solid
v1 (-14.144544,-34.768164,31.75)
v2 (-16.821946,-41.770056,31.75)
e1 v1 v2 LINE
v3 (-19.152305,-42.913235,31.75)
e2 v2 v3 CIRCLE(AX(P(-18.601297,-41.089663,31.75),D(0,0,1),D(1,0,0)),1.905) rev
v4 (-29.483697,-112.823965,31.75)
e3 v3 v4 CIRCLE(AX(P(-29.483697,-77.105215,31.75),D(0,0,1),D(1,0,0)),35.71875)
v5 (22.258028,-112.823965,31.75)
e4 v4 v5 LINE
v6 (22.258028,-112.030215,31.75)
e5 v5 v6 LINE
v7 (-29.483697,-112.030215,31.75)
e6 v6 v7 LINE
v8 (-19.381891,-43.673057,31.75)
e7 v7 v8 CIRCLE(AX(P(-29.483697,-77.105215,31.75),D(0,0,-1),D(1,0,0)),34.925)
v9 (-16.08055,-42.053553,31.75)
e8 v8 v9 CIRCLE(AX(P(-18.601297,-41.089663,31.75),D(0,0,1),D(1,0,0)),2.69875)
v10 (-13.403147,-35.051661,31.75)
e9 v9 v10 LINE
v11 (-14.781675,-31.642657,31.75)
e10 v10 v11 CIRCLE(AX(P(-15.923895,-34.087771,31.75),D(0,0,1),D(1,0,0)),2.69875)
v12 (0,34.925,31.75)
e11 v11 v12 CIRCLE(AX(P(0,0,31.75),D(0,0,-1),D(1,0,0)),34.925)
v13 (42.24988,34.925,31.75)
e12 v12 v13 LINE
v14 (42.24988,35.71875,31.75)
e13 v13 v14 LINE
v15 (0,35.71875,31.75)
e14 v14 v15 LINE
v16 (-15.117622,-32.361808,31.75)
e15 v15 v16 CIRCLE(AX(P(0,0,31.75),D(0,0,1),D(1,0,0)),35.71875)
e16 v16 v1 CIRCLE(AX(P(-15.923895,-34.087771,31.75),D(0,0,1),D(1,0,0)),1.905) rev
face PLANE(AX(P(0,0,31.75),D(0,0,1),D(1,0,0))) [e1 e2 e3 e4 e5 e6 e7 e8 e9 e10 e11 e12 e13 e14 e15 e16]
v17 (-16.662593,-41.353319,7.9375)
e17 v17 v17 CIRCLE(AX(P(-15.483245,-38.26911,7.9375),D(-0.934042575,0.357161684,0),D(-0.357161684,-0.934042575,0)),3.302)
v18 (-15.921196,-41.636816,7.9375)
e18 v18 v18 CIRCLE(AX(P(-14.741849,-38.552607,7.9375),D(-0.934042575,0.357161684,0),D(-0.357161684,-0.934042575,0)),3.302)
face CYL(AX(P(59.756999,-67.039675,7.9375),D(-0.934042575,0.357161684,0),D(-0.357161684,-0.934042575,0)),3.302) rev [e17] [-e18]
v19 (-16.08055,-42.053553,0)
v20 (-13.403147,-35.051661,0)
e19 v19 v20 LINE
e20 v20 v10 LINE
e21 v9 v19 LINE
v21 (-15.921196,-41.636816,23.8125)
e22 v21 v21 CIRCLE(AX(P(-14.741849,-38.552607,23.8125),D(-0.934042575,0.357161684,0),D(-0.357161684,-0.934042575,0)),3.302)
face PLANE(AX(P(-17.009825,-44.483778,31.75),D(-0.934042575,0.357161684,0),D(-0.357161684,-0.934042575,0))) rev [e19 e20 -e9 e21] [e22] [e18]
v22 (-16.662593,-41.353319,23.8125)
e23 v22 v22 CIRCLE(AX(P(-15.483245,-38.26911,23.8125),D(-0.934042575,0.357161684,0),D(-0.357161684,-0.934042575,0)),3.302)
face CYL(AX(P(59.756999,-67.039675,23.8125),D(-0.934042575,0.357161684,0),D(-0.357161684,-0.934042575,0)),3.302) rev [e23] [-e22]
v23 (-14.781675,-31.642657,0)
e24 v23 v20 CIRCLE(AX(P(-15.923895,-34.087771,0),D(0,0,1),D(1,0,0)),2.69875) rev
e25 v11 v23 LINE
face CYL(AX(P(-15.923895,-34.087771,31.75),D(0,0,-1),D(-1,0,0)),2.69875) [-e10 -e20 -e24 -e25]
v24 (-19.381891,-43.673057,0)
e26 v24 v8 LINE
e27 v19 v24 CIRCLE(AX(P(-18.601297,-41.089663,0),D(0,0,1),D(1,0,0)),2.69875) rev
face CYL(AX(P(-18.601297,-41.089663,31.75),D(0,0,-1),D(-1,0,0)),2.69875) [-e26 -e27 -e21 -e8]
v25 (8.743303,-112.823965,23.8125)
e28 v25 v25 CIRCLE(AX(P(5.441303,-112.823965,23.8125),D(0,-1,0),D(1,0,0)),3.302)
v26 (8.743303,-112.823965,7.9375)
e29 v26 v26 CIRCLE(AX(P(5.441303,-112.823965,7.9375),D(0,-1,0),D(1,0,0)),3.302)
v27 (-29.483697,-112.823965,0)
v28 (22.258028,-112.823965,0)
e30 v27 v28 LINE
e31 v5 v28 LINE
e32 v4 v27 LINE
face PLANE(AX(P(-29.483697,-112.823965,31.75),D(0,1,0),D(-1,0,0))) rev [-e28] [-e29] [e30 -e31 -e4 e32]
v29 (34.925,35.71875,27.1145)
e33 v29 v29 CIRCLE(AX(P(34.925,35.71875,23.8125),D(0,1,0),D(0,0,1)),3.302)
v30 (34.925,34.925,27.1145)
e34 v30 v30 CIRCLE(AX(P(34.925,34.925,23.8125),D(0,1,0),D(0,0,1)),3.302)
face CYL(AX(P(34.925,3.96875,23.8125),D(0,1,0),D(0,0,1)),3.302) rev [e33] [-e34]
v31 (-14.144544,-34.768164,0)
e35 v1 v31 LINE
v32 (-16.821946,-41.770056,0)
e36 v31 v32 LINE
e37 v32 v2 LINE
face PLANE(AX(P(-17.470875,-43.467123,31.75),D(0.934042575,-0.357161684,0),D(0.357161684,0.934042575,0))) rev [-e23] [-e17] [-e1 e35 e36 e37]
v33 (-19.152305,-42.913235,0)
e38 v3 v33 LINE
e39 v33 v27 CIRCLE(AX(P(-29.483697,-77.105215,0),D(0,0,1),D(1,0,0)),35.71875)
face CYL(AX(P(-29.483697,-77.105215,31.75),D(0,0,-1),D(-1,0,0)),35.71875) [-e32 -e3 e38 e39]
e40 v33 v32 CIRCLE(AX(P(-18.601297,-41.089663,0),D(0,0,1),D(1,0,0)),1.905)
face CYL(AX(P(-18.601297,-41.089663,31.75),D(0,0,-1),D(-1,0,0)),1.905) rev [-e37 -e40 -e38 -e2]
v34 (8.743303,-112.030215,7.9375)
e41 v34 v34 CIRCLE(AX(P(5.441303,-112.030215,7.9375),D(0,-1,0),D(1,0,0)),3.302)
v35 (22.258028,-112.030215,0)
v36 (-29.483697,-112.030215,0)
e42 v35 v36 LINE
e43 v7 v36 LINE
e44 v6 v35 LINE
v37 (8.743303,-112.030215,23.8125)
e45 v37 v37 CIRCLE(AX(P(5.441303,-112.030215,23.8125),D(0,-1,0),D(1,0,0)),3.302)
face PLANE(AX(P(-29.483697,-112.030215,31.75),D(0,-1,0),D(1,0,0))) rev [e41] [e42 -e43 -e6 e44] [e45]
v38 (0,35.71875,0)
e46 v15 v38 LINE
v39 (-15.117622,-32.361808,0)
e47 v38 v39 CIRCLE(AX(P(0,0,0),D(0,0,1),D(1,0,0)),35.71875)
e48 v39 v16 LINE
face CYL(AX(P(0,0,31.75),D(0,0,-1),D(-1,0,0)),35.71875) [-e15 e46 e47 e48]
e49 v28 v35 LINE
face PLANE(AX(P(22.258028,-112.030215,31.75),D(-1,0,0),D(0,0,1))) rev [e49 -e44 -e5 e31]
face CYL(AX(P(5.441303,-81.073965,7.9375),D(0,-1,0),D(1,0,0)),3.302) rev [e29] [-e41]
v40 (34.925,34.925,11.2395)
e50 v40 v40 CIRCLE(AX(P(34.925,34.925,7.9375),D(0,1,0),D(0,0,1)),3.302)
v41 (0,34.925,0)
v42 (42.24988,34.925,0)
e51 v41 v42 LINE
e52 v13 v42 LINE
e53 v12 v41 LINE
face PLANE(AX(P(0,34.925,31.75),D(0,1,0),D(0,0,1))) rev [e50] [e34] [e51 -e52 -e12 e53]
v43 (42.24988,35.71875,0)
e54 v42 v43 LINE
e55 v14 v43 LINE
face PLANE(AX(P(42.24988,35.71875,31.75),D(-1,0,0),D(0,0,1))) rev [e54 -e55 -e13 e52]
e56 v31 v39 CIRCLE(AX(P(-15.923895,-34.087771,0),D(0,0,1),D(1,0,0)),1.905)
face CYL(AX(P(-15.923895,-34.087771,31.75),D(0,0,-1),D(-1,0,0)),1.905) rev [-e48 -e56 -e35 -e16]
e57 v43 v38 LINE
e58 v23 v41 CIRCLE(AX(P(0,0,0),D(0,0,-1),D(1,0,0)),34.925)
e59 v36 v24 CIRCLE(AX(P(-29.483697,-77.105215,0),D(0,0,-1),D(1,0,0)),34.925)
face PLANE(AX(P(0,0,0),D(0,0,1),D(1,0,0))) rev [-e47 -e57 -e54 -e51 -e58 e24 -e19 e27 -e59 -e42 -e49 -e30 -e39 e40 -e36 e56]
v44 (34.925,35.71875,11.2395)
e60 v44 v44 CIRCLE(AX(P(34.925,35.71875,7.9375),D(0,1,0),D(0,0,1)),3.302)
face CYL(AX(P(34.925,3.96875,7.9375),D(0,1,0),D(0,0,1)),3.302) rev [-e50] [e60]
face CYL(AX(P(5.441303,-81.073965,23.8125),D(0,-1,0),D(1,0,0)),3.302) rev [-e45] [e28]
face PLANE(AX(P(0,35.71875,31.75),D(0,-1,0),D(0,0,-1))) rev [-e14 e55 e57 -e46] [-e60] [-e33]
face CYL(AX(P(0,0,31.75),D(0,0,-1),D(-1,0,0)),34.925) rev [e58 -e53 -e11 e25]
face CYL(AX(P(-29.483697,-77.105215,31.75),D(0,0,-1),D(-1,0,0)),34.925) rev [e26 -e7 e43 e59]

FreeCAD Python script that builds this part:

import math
import FreeCAD as App
import Part
import Sketcher
from FreeCAD import Vector
Q = App.Units.Quantity


def edges_at(feature, points):
    """Names of the edges that pass closest to the given points."""
    edges = feature.Shape.Edges
    near = lambda p: min(range(len(edges)), key=lambda i: edges[i].distToShape(Part.Vertex(*p))[0])
    return sorted({f"Edge{near(p) + 1}" for p in points})

doc = App.newDocument("Part")
params = doc.addObject("Spreadsheet::Sheet", "Params")
for row, (alias, value) in enumerate([
    ("sketch1_radius", "1.375 in"),
    ("sketch1_radius2", "1.40625 in"),
    ("sketch1_length", "0.5 in"),
    ("pad1_length", "1.25 in"),
    ("sketch2_diameter", "0.26 in"),
    ("sketch3_diameter", "0.26 in"),
    ("pocket2_length", "1.25 in"),
    ("sketch4_diameter", "0.26 in"),
    ("pocket3_length", "1.25 in"),
    ("fillet_radius", "0.075 in"),
    ("fillet2_radius", "2.69875 mm"),
], start=1):
    params.set(f"A{row}", alias)
    params.set(f"B{row}", "=" + value)
    params.setAlias(f"B{row}", alias)

body = doc.addObject("PartDesign::Body", "Body")

# Sketch on XY plane
sketch1 = doc.addObject("Sketcher::SketchObject", "Sketch")
body.addObject(sketch1)
sketch1.AttachmentSupport = (doc.XY_Plane, [""])
sketch1.MapMode = "FlatFace"
sketch1.addGeometry(Part.LineSegment(Vector(-17, -44.5, 0), Vector(-12.5, -32.6, 0)), False)
sketch1.addGeometry(Part.ArcOfCircle(Part.Circle(Vector(0, 0, 0), Vector(0, 0, 1), 34.9), math.radians(90), math.radians(249)), False)
sketch1.addGeometry(Part.LineSegment(Vector(0, 34.9, 0), Vector(42.2, 34.9, 0)), False)
sketch1.addGeometry(Part.LineSegment(Vector(42.2, 34.9, 0), Vector(42.2, 35.7, 0)), False)
sketch1.addGeometry(Part.LineSegment(Vector(42.2, 35.7, 0), Vector(0, 35.7, 0)), False)
sketch1.addGeometry(Part.ArcOfCircle(Part.Circle(Vector(0, 0, 0), Vector(0, 0, 1), 35.7), math.radians(90), math.radians(248)), False)
sketch1.addGeometry(Part.LineSegment(Vector(-13.5, -33.1, 0), Vector(-17.5, -43.5, 0)), False)
sketch1.addGeometry(Part.ArcOfCircle(Part.Circle(Vector(-29.5, -77.1, 0), Vector(0, 0, 1), 35.7), math.radians(70), math.radians(270)), False)
sketch1.addGeometry(Part.LineSegment(Vector(-29.5, -112.8, 0), Vector(22.3, -112.8, 0)), False)
sketch1.addGeometry(Part.LineSegment(Vector(22.3, -112.8, 0), Vector(22.3, -112, 0)), False)
sketch1.addGeometry(Part.LineSegment(Vector(22.3, -112, 0), Vector(-29.5, -112, 0)), False)
sketch1.addGeometry(Part.ArcOfCircle(Part.Circle(Vector(-29.5, -77.1, 0), Vector(0, 0, 1), 34.9), math.radians(69), math.radians(270)), False)
sketch1.addConstraint(Sketcher.Constraint("Coincident", 0, 2, 1, 2))
sketch1.addConstraint(Sketcher.Constraint("Tangent", 1, 1, 2, 1))
sketch1.addConstraint(Sketcher.Constraint("Coincident", 2, 2, 3, 1))
sketch1.addConstraint(Sketcher.Constraint("Coincident", 3, 2, 4, 1))
sketch1.addConstraint(Sketcher.Constraint("Tangent", 4, 2, 5, 1))
sketch1.addConstraint(Sketcher.Constraint("Coincident", 5, 2, 6, 1))
sketch1.addConstraint(Sketcher.Constraint("Coincident", 6, 2, 7, 1))
sketch1.addConstraint(Sketcher.Constraint("Tangent", 7, 2, 8, 1))
sketch1.addConstraint(Sketcher.Constraint("Coincident", 8, 2, 9, 1))
sketch1.addConstraint(Sketcher.Constraint("Coincident", 9, 2, 10, 1))
sketch1.addConstraint(Sketcher.Constraint("Tangent", 10, 2, 11, 2))
sketch1.addConstraint(Sketcher.Constraint("Coincident", 11, 1, 0, 1))
sketch1.addConstraint(Sketcher.Constraint("Horizontal", 2))
sketch1.addConstraint(Sketcher.Constraint("Vertical", 3))
sketch1.addConstraint(Sketcher.Constraint("Horizontal", 4))
sketch1.addConstraint(Sketcher.Constraint("Horizontal", 8))
sketch1.addConstraint(Sketcher.Constraint("Vertical", 9))
sketch1.addConstraint(Sketcher.Constraint("Horizontal", 10))
sketch1.addConstraint(Sketcher.Constraint("Coincident", 1, 3, -1, 1))
sketch1.addConstraint(Sketcher.Constraint("Coincident", 5, 3, -1, 1))
sketch1.addConstraint(Sketcher.Constraint("Coincident", 11, 3, 7, 3))
sketch1.addConstraint(Sketcher.Constraint("Equal", 5, 7))
sketch1.addConstraint(Sketcher.Constraint("Equal", 1, 11))
sketch1.addConstraint(Sketcher.Constraint("Parallel", 0, 6))
sketch1.addConstraint(Sketcher.Constraint("Radius", 1, Q("1.375 in")))
sketch1.addConstraint(Sketcher.Constraint("Radius", 5, Q("1.40625 in")))
sketch1.addConstraint(Sketcher.Constraint("Distance", 0, Q("0.5 in")))
sketch1.addConstraint(Sketcher.Constraint("DistanceX", 2, 1, 2, 2, Q("42.24988 mm")))
sketch1.addConstraint(Sketcher.Constraint("DistanceX", 0, 2, 8, 2, Q("34.7319 mm")))
sketch1.addConstraint(Sketcher.Constraint("Distance", 6, Q("11.130141 mm")))
sketch1.addConstraint(Sketcher.Constraint("DistanceX", 8, 1, 8, 2, Q("51.741725 mm")))
sketch1.addConstraint(Sketcher.Constraint("DistanceX", 0, 2, -1, 1, Q("12.473872 mm")))
sketch1.addConstraint(Sketcher.Constraint("DistanceY", 5, 2, 0, 2, Q("0.44966 mm")))
sketch1.setExpression("Constraints[24]", "Params.sketch1_radius")
sketch1.setExpression("Constraints[25]", "Params.sketch1_radius2")
sketch1.setExpression("Constraints[26]", "Params.sketch1_length")
pad1 = doc.addObject("PartDesign::Pad", "Pad")
body.addObject(pad1)
pad1.Profile = sketch1
pad1.setExpression("Length", "Params.pad1_length")

# Sketch on an angled plane
sketch2 = doc.addObject("Sketcher::SketchObject", "Sketch001")
body.addObject(sketch2)
sketch2.Placement = App.Placement(Vector(-0.741396, 0.283497, 0), App.Rotation(Vector(0, 0, 1), Vector(0.357161684, 0.934042575, 0), Vector(-0.934042575, 0.357161684, 0), "ZXY"))
sketch2.addGeometry(Part.Circle(Vector(7.9, -41.3, 0), Vector(0, 0, 1), 3.3), False)
sketch2.addGeometry(Part.Circle(Vector(23.8, -41.3, 0), Vector(0, 0, 1), 3.3), False)
sketch2.addConstraint(Sketcher.Constraint("Equal", 0, 1))
sketch2.addConstraint(Sketcher.Constraint("Horizontal", 0, 3, 1, 3))
sketch2.addConstraint(Sketcher.Constraint("Diameter", 0, Q("0.26 in")))
sketch2.addConstraint(Sketcher.Constraint("DistanceX", -1, 1, 0, 3, Q("0.3125 in")))
sketch2.addConstraint(Sketcher.Constraint("DistanceY", 0, 3, -1, 1, Q("1.625 in")))
sketch2.addConstraint(Sketcher.Constraint("DistanceX", -1, 1, 1, 3, Q("0.9375 in")))
sketch2.setExpression("Constraints[2]", "Params.sketch2_diameter")
pocket1 = doc.addObject("PartDesign::Pocket", "Pocket")
body.addObject(pocket1)
pocket1.Profile = sketch2
pocket1.Type = "ThroughAll"

# Sketch on XZ plane
sketch3 = doc.addObject("Sketcher::SketchObject", "Sketch002")
body.addObject(sketch3)
sketch3.AttachmentSupport = (doc.XZ_Plane, [""])
sketch3.MapMode = "FlatFace"
sketch3.AttachmentOffset = App.Placement(Vector(0, 0, -1.40625 * 25.4), App.Rotation())
sketch3.addGeometry(Part.Circle(Vector(34.9, 7.9, 0), Vector(0, 0, 1), 3.3), False)
sketch3.addGeometry(Part.Circle(Vector(34.9, 23.8, 0), Vector(0, 0, 1), 3.3), False)
sketch3.addConstraint(Sketcher.Constraint("Equal", 0, 1))
sketch3.addConstraint(Sketcher.Constraint("Vertical", 0, 3, 1, 3))
sketch3.addConstraint(Sketcher.Constraint("Diameter", 0, Q("0.26 in")))
sketch3.addConstraint(Sketcher.Constraint("DistanceX", -1, 1, 0, 3, Q("1.375 in")))
sketch3.addConstraint(Sketcher.Constraint("DistanceY", -1, 1, 0, 3, Q("0.3125 in")))
sketch3.addConstraint(Sketcher.Constraint("DistanceY", -1, 1, 1, 3, Q("0.9375 in")))
sketch3.setExpression("Constraints[2]", "Params.sketch3_diameter")
pocket2 = doc.addObject("PartDesign::Pocket", "Pocket001")
body.addObject(pocket2)
pocket2.Profile = sketch3
pocket2.setExpression("Length", "Params.pocket2_length")
pocket2.Reversed = True

# Sketch on XZ plane
sketch4 = doc.addObject("Sketcher::SketchObject", "Sketch003")
body.addObject(sketch4)
sketch4.AttachmentSupport = (doc.XZ_Plane, [""])
sketch4.MapMode = "FlatFace"
sketch4.AttachmentOffset = App.Placement(Vector(0, 0, 112.823965), App.Rotation())
sketch4.addGeometry(Part.Circle(Vector(5.4, 23.8, 0), Vector(0, 0, 1), 3.3), False)
sketch4.addGeometry(Part.Circle(Vector(5.4, 7.9, 0), Vector(0, 0, 1), 3.3), False)
sketch4.addConstraint(Sketcher.Constraint("Equal", 0, 1))
sketch4.addConstraint(Sketcher.Constraint("Vertical", 0, 3, 1, 3))
sketch4.addConstraint(Sketcher.Constraint("Diameter", 0, Q("0.26 in")))
sketch4.addConstraint(Sketcher.Constraint("DistanceY", -1, 1, 0, 3, Q("0.9375 in")))
sketch4.addConstraint(Sketcher.Constraint("DistanceY", -1, 1, 1, 3, Q("0.3125 in")))
sketch4.addConstraint(Sketcher.Constraint("DistanceX", -1, 1, 0, 3, Q("5.441303 mm")))
sketch4.setExpression("Constraints[2]", "Params.sketch4_diameter")
pocket3 = doc.addObject("PartDesign::Pocket", "Pocket002")
body.addObject(pocket3)
pocket3.Profile = sketch4
pocket3.setExpression("Length", "Params.pocket3_length")
doc.recompute()

fillet = doc.addObject("PartDesign::Fillet", "Fillet")
body.addObject(fillet)
fillet.Base = (pocket3, edges_at(pocket3, [(-17.471, -43.467, 15.875), (-13.496, -33.071, 15.875)]))
fillet.setExpression("Radius", "Params.fillet_radius")
doc.recompute()

fillet2 = doc.addObject("PartDesign::Fillet", "Fillet001")
body.addObject(fillet2)
fillet2.Base = (fillet, edges_at(fillet, [(-12.474, -32.621, 15.875), (-17.01, -44.484, 15.875)]))
fillet2.setExpression("Radius", "Params.fillet2_radius")

doc.recompute()
